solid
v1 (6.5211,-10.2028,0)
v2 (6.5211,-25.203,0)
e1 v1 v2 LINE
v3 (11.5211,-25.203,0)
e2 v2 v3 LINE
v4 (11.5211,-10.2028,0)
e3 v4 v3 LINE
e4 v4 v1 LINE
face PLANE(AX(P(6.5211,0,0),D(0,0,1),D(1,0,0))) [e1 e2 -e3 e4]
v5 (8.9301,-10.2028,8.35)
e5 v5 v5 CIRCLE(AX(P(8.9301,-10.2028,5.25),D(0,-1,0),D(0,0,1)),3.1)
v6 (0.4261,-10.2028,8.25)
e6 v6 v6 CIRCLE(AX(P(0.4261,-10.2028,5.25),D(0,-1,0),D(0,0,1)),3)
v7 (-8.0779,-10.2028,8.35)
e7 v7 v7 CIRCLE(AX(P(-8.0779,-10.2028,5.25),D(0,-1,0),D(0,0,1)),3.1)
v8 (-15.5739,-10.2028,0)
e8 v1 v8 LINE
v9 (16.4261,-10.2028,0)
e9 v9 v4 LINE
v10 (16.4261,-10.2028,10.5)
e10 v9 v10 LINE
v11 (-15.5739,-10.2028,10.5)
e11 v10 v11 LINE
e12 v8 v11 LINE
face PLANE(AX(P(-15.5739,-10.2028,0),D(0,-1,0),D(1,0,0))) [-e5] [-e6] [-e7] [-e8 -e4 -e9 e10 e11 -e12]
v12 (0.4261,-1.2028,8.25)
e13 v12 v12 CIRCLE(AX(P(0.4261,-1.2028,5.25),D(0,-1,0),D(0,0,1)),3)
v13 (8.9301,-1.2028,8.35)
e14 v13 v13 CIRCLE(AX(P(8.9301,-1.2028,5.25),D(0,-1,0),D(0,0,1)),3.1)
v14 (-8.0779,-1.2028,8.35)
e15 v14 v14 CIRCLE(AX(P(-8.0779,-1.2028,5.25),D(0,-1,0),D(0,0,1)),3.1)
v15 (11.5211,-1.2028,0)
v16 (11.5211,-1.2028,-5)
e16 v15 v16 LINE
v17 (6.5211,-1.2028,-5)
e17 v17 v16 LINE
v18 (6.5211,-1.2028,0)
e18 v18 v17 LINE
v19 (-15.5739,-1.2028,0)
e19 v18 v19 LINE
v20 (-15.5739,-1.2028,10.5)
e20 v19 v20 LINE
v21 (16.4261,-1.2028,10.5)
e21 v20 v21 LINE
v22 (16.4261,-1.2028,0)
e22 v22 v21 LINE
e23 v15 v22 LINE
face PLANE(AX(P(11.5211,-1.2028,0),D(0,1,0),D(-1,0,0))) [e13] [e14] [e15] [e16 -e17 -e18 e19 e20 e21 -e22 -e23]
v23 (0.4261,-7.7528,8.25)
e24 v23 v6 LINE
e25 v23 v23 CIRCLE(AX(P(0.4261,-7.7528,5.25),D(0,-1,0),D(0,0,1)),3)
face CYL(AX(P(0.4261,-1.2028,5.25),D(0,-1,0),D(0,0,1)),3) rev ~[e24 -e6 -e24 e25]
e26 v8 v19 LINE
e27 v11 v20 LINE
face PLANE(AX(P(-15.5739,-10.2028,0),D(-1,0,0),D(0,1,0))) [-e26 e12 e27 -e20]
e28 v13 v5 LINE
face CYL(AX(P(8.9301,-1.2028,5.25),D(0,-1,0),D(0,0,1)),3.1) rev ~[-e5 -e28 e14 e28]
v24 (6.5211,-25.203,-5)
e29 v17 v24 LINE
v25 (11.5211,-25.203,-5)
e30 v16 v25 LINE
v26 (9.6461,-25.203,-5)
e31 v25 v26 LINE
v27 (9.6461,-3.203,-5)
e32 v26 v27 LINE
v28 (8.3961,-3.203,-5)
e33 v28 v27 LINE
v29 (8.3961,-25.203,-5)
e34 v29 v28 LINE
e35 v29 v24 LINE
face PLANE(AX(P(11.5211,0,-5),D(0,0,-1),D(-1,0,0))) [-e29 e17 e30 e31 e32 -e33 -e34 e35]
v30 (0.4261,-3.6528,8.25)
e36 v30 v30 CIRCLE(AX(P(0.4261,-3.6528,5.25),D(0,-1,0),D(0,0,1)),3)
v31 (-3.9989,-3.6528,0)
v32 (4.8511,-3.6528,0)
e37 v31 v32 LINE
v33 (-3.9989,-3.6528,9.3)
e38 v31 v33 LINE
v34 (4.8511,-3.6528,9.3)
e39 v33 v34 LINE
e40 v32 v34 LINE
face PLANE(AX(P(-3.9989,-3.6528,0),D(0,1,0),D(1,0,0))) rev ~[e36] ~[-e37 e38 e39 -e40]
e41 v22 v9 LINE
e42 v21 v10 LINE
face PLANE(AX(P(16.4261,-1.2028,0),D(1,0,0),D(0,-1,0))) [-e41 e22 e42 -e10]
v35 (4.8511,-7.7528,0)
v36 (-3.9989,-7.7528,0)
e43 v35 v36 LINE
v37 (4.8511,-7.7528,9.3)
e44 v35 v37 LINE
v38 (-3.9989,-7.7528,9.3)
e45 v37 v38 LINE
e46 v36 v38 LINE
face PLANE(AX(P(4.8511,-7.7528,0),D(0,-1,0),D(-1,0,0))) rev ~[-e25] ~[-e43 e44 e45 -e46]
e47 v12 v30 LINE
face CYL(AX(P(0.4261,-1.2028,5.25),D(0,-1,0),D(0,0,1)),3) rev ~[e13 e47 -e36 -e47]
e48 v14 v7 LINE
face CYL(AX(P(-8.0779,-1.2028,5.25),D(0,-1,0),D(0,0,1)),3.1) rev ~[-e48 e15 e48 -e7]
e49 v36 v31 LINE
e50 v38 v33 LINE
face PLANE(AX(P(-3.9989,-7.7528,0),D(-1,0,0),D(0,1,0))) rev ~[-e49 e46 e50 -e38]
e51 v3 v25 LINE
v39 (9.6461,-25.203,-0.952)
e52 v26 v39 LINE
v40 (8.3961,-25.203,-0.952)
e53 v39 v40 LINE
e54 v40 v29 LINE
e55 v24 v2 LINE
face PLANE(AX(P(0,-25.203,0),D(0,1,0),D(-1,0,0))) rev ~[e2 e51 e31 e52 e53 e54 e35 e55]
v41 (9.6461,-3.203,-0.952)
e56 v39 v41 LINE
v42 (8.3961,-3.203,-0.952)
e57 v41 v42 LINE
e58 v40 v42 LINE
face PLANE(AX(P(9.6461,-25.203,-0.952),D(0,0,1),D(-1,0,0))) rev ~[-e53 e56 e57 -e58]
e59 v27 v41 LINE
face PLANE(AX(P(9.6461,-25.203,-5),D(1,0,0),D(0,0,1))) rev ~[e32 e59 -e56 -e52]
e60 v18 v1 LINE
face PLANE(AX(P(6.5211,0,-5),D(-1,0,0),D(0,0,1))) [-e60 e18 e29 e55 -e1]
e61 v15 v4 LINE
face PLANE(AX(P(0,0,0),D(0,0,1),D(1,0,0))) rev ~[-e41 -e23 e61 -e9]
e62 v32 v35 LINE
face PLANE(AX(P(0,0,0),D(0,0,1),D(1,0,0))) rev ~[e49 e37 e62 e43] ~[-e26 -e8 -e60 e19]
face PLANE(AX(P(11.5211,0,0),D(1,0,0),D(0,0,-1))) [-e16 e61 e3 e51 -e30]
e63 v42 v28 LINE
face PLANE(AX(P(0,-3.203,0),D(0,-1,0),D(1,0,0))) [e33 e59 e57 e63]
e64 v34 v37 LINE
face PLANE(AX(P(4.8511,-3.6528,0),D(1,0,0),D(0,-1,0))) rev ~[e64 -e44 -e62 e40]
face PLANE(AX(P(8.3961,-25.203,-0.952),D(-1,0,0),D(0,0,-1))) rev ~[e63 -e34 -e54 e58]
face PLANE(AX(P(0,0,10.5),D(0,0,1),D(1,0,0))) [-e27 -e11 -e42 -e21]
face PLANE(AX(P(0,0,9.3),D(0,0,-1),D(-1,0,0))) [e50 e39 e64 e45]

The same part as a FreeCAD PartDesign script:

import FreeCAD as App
import Part
import Sketcher
from FreeCAD import Vector

doc = App.newDocument("Part")
body = doc.addObject("PartDesign::Body", "Body")

sketch1 = doc.addObject("Sketcher::SketchObject", "Sketch")
body.addObject(sketch1)
sketch1.AttachmentSupport = (doc.XY_Plane, [""])
sketch1.MapMode = "FlatFace"
sketch1.addGeometry(Part.LineSegment(Vector(16, -1, 0), Vector(-16, -1, 0)), False)
sketch1.addGeometry(Part.LineSegment(Vector(-16, -1, 0), Vector(-16, -10, 0)), False)
sketch1.addGeometry(Part.LineSegment(Vector(-16, -10, 0), Vector(16, -10, 0)), False)
sketch1.addGeometry(Part.LineSegment(Vector(16, -10, 0), Vector(16, -1, 0)), False)
sketch1.addConstraint(Sketcher.Constraint("Coincident", 0, 2, 1, 1))
sketch1.addConstraint(Sketcher.Constraint("Coincident", 1, 2, 2, 1))
sketch1.addConstraint(Sketcher.Constraint("Coincident", 2, 2, 3, 1))
sketch1.addConstraint(Sketcher.Constraint("Coincident", 3, 2, 0, 1))
sketch1.addConstraint(Sketcher.Constraint("Horizontal", 0))
sketch1.addConstraint(Sketcher.Constraint("Vertical", 1))
sketch1.addConstraint(Sketcher.Constraint("Horizontal", 2))
sketch1.addConstraint(Sketcher.Constraint("Vertical", 3))
sketch1.addConstraint(Sketcher.Constraint("DistanceX", 0, 2, 0, 1, 32.0))
sketch1.addConstraint(Sketcher.Constraint("DistanceY", 1, 2, 1, 1, 9.0))
sketch1.addConstraint(Sketcher.Constraint("DistanceX", 0, 2, -1, 1, 15.574))
sketch1.addConstraint(Sketcher.Constraint("DistanceY", 0, 2, -1, 1, 1.2028))
pad1 = doc.addObject("PartDesign::Pad", "Pad")
body.addObject(pad1)
pad1.Profile = sketch1
pad1.Length = 10.5

sketch2 = doc.addObject("Sketcher::SketchObject", "Sketch001")
body.addObject(sketch2)
sketch2.AttachmentSupport = (doc.XY_Plane, [""])
sketch2.MapMode = "FlatFace"
sketch2.addGeometry(Part.LineSegment(Vector(4.9, -3.7, 0), Vector(4.9, -7.8, 0)), False)
sketch2.addGeometry(Part.LineSegment(Vector(4.9, -7.8, 0), Vector(-4, -7.8, 0)), False)
sketch2.addGeometry(Part.LineSegment(Vector(-4, -7.8, 0), Vector(-4, -3.7, 0)), False)
sketch2.addGeometry(Part.LineSegment(Vector(-4, -3.7, 0), Vector(4.9, -3.7, 0)), False)
sketch2.addConstraint(Sketcher.Constraint("Coincident", 0, 2, 1, 1))
sketch2.addConstraint(Sketcher.Constraint("Coincident", 1, 2, 2, 1))
sketch2.addConstraint(Sketcher.Constraint("Coincident", 2, 2, 3, 1))
sketch2.addConstraint(Sketcher.Constraint("Coincident", 3, 2, 0, 1))
sketch2.addConstraint(Sketcher.Constraint("Vertical", 0))
sketch2.addConstraint(Sketcher.Constraint("Horizontal", 1))
sketch2.addConstraint(Sketcher.Constraint("Vertical", 2))
sketch2.addConstraint(Sketcher.Constraint("Horizontal", 3))
sketch2.addConstraint(Sketcher.Constraint("DistanceY", 0, 2, 0, 1, 4.1))
sketch2.addConstraint(Sketcher.Constraint("DistanceX", 1, 2, 1, 1, 8.85))
sketch2.addConstraint(Sketcher.Constraint("DistanceX", -1, 1, 0, 2, 4.851))
sketch2.addConstraint(Sketcher.Constraint("DistanceY", 0, 2, -1, 1, 7.7528))
pocket1 = doc.addObject("PartDesign::Pocket", "Pocket")
body.addObject(pocket1)
pocket1.Profile = sketch2
pocket1.Length = 9.3
pocket1.Reversed = True

sketch3 = doc.addObject("Sketcher::SketchObject", "Sketch002")
body.addObject(sketch3)
sketch3.AttachmentSupport = (doc.XZ_Plane, [""])
sketch3.MapMode = "FlatFace"
sketch3.AttachmentOffset = App.Placement(Vector(0, 0, 10.2028), App.Rotation())
sketch3.addGeometry(Part.LineSegment(Vector(-10.7, 1.2, 0), Vector(-10.7, 0, 0)), False)
sketch3.addGeometry(Part.LineSegment(Vector(-10.7, 0, 0), Vector(-5.7, 0, 0)), False)
sketch3.addGeometry(Part.LineSegment(Vector(-5.7, 0, 0), Vector(-5.7, 1.2, 0)), False)
sketch3.addGeometry(Part.LineSegment(Vector(-5.7, 1.2, 0), Vector(-10.7, 1.2, 0)), False)
sketch3.addConstraint(Sketcher.Constraint("Coincident", 0, 2, 1, 1))
sketch3.addConstraint(Sketcher.Constraint("Coincident", 1, 2, 2, 1))
sketch3.addConstraint(Sketcher.Constraint("Coincident", 2, 2, 3, 1))
sketch3.addConstraint(Sketcher.Constraint("Coincident", 3, 2, 0, 1))
sketch3.addConstraint(Sketcher.Constraint("Vertical", 0))
sketch3.addConstraint(Sketcher.Constraint("Horizontal", 1))
sketch3.addConstraint(Sketcher.Constraint("Vertical", 2))
sketch3.addConstraint(Sketcher.Constraint("Horizontal", 3))
sketch3.addConstraint(Sketcher.Constraint("PointOnObject", 0, 2, -1))
sketch3.addConstraint(Sketcher.Constraint("DistanceX", 1, 1, 1, 2, 5.0))
sketch3.addConstraint(Sketcher.Constraint("DistanceY", 0, 2, 0, 1, 1.2))
sketch3.addConstraint(Sketcher.Constraint("DistanceX", 0, 2, -1, 1, 10.6694))
pad2 = doc.addObject("PartDesign::Pad", "Pad001")
body.addObject(pad2)
pad2.Profile = sketch3
pad2.Length = 15

sketch4 = doc.addObject("Sketcher::SketchObject", "Sketch003")
body.addObject(sketch4)
sketch4.AttachmentSupport = (doc.XY_Plane, [""])
sketch4.MapMode = "FlatFace"
sketch4.addGeometry(Part.LineSegment(Vector(-5.7, -1.2, 0), Vector(-5.7, -25.2, 0)), False)
sketch4.addGeometry(Part.LineSegment(Vector(-5.7, -25.2, 0), Vector(-10.7, -25.2, 0)), False)
sketch4.addGeometry(Part.LineSegment(Vector(-10.7, -25.2, 0), Vector(-10.7, -1.2, 0)), False)
sketch4.addGeometry(Part.LineSegment(Vector(-10.7, -1.2, 0), Vector(-5.7, -1.2, 0)), False)
sketch4.addConstraint(Sketcher.Constraint("Coincident", 0, 2, 1, 1))
sketch4.addConstraint(Sketcher.Constraint("Coincident", 1, 2, 2, 1))
sketch4.addConstraint(Sketcher.Constraint("Coincident", 2, 2, 3, 1))
sketch4.addConstraint(Sketcher.Constraint("Coincident", 3, 2, 0, 1))
sketch4.addConstraint(Sketcher.Constraint("Vertical", 0))
sketch4.addConstraint(Sketcher.Constraint("Horizontal", 1))
sketch4.addConstraint(Sketcher.Constraint("Vertical", 2))
sketch4.addConstraint(Sketcher.Constraint("Horizontal", 3))
sketch4.addConstraint(Sketcher.Constraint("DistanceX", 1, 2, 1, 1, 5.0))
sketch4.addConstraint(Sketcher.Constraint("DistanceY", 0, 2, 0, 1, 24.0))
sketch4.addConstraint(Sketcher.Constraint("DistanceX", 0, 2, -1, 1, 5.6694))
sketch4.addConstraint(Sketcher.Constraint("DistanceY", 0, 2, -1, 1, 25.2028))
pad3 = doc.addObject("PartDesign::Pad", "Pad002")
body.addObject(pad3)
pad3.Profile = sketch4
pad3.Length = 5
pad3.Reversed = True

sketch5 = doc.addObject("Sketcher::SketchObject", "Sketch004")
body.addObject(sketch5)
sketch5.AttachmentSupport = (doc.XZ_Plane, [""])
sketch5.MapMode = "FlatFace"
sketch5.AttachmentOffset = App.Placement(Vector(0, 0, 25.2028), App.Rotation())
sketch5.addGeometry(Part.LineSegment(Vector(-8.8, -1, 0), Vector(-8.8, -5, 0)), False)
sketch5.addGeometry(Part.LineSegment(Vector(-8.8, -5, 0), Vector(-7.5, -5, 0)), False)
sketch5.addGeometry(Part.LineSegment(Vector(-7.5, -5, 0), Vector(-7.5, -1, 0)), False)
sketch5.addGeometry(Part.LineSegment(Vector(-7.5, -1, 0), Vector(-8.8, -1, 0)), False)
sketch5.addConstraint(Sketcher.Constraint("Coincident", 0, 2, 1, 1))
sketch5.addConstraint(Sketcher.Constraint("Coincident", 1, 2, 2, 1))
sketch5.addConstraint(Sketcher.Constraint("Coincident", 2, 2, 3, 1))
sketch5.addConstraint(Sketcher.Constraint("Coincident", 3, 2, 0, 1))
sketch5.addConstraint(Sketcher.Constraint("Vertical", 0))
sketch5.addConstraint(Sketcher.Constraint("Horizontal", 1))
sketch5.addConstraint(Sketcher.Constraint("Vertical", 2))
sketch5.addConstraint(Sketcher.Constraint("Horizontal", 3))
sketch5.addConstraint(Sketcher.Constraint("DistanceX", 1, 1, 1, 2, 1.25))
sketch5.addConstraint(Sketcher.Constraint("DistanceY", 0, 2, 0, 1, 4.0475))
sketch5.addConstraint(Sketcher.Constraint("DistanceY", 0, 2, -1, 1, 5.0))
sketch5.addConstraint(Sketcher.Constraint("DistanceX", 0, 2, -1, 1, 8.7944))
pocket2 = doc.addObject("PartDesign::Pocket", "Pocket001")
body.addObject(pocket2)
pocket2.Profile = sketch5
pocket2.Length = 22

sketch6 = doc.addObject("Sketcher::SketchObject", "Sketch005")
body.addObject(sketch6)
sketch6.AttachmentSupport = (doc.XZ_Plane, [""])
sketch6.MapMode = "FlatFace"
sketch6.AttachmentOffset = App.Placement(Vector(0, 0, 25.2028), App.Rotation())
sketch6.addGeometry(Part.LineSegment(Vector(-5.7, 0, 0), Vector(-5.7, 1.2, 0)), False)
sketch6.addGeometry(Part.LineSegment(Vector(-5.7, 1.2, 0), Vector(-10.7, 1.2, 0)), False)
sketch6.addGeometry(Part.LineSegment(Vector(-10.7, 1.2, 0), Vector(-10.7, 0, 0)), False)
sketch6.addGeometry(Part.LineSegment(Vector(-10.7, 0, 0), Vector(-5.7, 0, 0)), False)
sketch6.addConstraint(Sketcher.Constraint("Coincident", 0, 2, 1, 1))
sketch6.addConstraint(Sketcher.Constraint("Coincident", 1, 2, 2, 1))
sketch6.addConstraint(Sketcher.Constraint("Coincident", 2, 2, 3, 1))
sketch6.addConstraint(Sketcher.Constraint("Coincident", 3, 2, 0, 1))
sketch6.addConstraint(Sketcher.Constraint("Vertical", 0))
sketch6.addConstraint(Sketcher.Constraint("Horizontal", 1))
sketch6.addConstraint(Sketcher.Constraint("Vertical", 2))
sketch6.addConstraint(Sketcher.Constraint("Horizontal", 3))
sketch6.addConstraint(Sketcher.Constraint("PointOnObject", 2, 2, -1))
sketch6.addConstraint(Sketcher.Constraint("DistanceX", 1, 2, 1, 1, 5.0))
sketch6.addConstraint(Sketcher.Constraint("DistanceY", 0, 1, 0, 2, 1.2))
sketch6.addConstraint(Sketcher.Constraint("DistanceX", 0, 2, -1, 1, 5.6694))
pocket3 = doc.addObject("PartDesign::Pocket", "Pocket002")
body.addObject(pocket3)
pocket3.Profile = sketch6
pocket3.Length = 15

sketch7 = doc.addObject("Sketcher::SketchObject", "Sketch006")
body.addObject(sketch7)
sketch7.AttachmentSupport = (doc.XZ_Plane, [""])
sketch7.MapMode = "FlatFace"
sketch7.addGeometry(Part.LineSegment(Vector(7, -5, 0), Vector(7, 0, 0)), False)
sketch7.addGeometry(Part.LineSegment(Vector(7, 0, 0), Vector(12, 0, 0)), False)
sketch7.addGeometry(Part.LineSegment(Vector(12, 0, 0), Vector(12, -5, 0)), False)
sketch7.addGeometry(Part.LineSegment(Vector(12, -5, 0), Vector(7, -5, 0)), False)
sketch7.addConstraint(Sketcher.Constraint("Coincident", 0, 2, 1, 1))
sketch7.addConstraint(Sketcher.Constraint("Coincident", 1, 2, 2, 1))
sketch7.addConstraint(Sketcher.Constraint("Coincident", 2, 2, 3, 1))
sketch7.addConstraint(Sketcher.Constraint("Coincident", 3, 2, 0, 1))
sketch7.addConstraint(Sketcher.Constraint("Vertical", 0))
sketch7.addConstraint(Sketcher.Constraint("Horizontal", 1))
sketch7.addConstraint(Sketcher.Constraint("Vertical", 2))
sketch7.addConstraint(Sketcher.Constraint("Horizontal", 3))
sketch7.addConstraint(Sketcher.Constraint("PointOnObject", 0, 2, -1))
sketch7.addConstraint(Sketcher.Constraint("Equal", 3, 0))
sketch7.addConstraint(Sketcher.Constraint("DistanceX", 1, 1, 1, 2, 5.0))
sketch7.addConstraint(Sketcher.Constraint("DistanceX", -1, 1, 0, 2, 6.521))
pad4 = doc.addObject("PartDesign::Pad", "Pad003")
body.addObject(pad4)
pad4.Profile = sketch7
pad4.Length = 25.203

sketch8 = doc.addObject("Sketcher::SketchObject", "Sketch007")
body.addObject(sketch8)
sketch8.AttachmentSupport = (doc.XY_Plane, [""])
sketch8.MapMode = "FlatFace"
sketch8.addGeometry(Part.LineSegment(Vector(11.5, 0, 0), Vector(6.5, 0, 0)), False)
sketch8.addGeometry(Part.LineSegment(Vector(6.5, 0, 0), Vector(6.5, -1.2, 0)), False)
sketch8.addGeometry(Part.LineSegment(Vector(6.5, -1.2, 0), Vector(11.5, -1.2, 0)), False)
sketch8.addGeometry(Part.LineSegment(Vector(11.5, -1.2, 0), Vector(11.5, 0, 0)), False)
sketch8.addConstraint(Sketcher.Constraint("Coincident", 0, 2, 1, 1))
sketch8.addConstraint(Sketcher.Constraint("Coincident", 1, 2, 2, 1))
sketch8.addConstraint(Sketcher.Constraint("Coincident", 2, 2, 3, 1))
sketch8.addConstraint(Sketcher.Constraint("Coincident", 3, 2, 0, 1))
sketch8.addConstraint(Sketcher.Constraint("Horizontal", 0))
sketch8.addConstraint(Sketcher.Constraint("Vertical", 1))
sketch8.addConstraint(Sketcher.Constraint("Horizontal", 2))
sketch8.addConstraint(Sketcher.Constraint("Vertical", 3))
sketch8.addConstraint(Sketcher.Constraint("PointOnObject", 0, 2, -1))
sketch8.addConstraint(Sketcher.Constraint("DistanceX", 0, 2, 0, 1, 5.0))
sketch8.addConstraint(Sketcher.Constraint("DistanceY", 1, 2, 1, 1, 1.2028))
sketch8.addConstraint(Sketcher.Constraint("DistanceX", -1, 1, 0, 2, 6.521))
pocket4 = doc.addObject("PartDesign::Pocket", "Pocket003")
body.addObject(pocket4)
pocket4.Profile = sketch8
pocket4.Length = 25

sketch9 = doc.addObject("Sketcher::SketchObject", "Sketch008")
body.addObject(sketch9)
sketch9.AttachmentSupport = (doc.XZ_Plane, [""])
sketch9.MapMode = "FlatFace"
sketch9.AttachmentOffset = App.Placement(Vector(0, 0, 25.203), App.Rotation())
sketch9.addGeometry(Part.LineSegment(Vector(8.4, -1, 0), Vector(8.4, -5, 0)), False)
sketch9.addGeometry(Part.LineSegment(Vector(8.4, -5, 0), Vector(9.6, -5, 0)), False)
sketch9.addGeometry(Part.LineSegment(Vector(9.6, -5, 0), Vector(9.6, -1, 0)), False)
sketch9.addGeometry(Part.LineSegment(Vector(9.6, -1, 0), Vector(8.4, -1, 0)), False)
sketch9.addConstraint(Sketcher.Constraint("Coincident", 0, 2, 1, 1))
sketch9.addConstraint(Sketcher.Constraint("Coincident", 1, 2, 2, 1))
sketch9.addConstraint(Sketcher.Constraint("Coincident", 2, 2, 3, 1))
sketch9.addConstraint(Sketcher.Constraint("Coincident", 3, 2, 0, 1))
sketch9.addConstraint(Sketcher.Constraint("Vertical", 0))
sketch9.addConstraint(Sketcher.Constraint("Horizontal", 1))
sketch9.addConstraint(Sketcher.Constraint("Vertical", 2))
sketch9.addConstraint(Sketcher.Constraint("Horizontal", 3))
sketch9.addConstraint(Sketcher.Constraint("DistanceX", 1, 1, 1, 2, 1.25))
sketch9.addConstraint(Sketcher.Constraint("DistanceY", 0, 2, 0, 1, 4.048))
sketch9.addConstraint(Sketcher.Constraint("DistanceY", 0, 2, -1, 1, 5.0))
sketch9.addConstraint(Sketcher.Constraint("DistanceX", -1, 1, 0, 2, 8.396))
pocket5 = doc.addObject("PartDesign::Pocket", "Pocket004")
body.addObject(pocket5)
pocket5.Profile = sketch9
pocket5.Length = 22

sketch10 = doc.addObject("Sketcher::SketchObject", "Sketch009")
body.addObject(sketch10)
sketch10.AttachmentSupport = (doc.XZ_Plane, [""])
sketch10.MapMode = "FlatFace"
sketch10.AttachmentOffset = App.Placement(Vector(0, 0, 25.2028), App.Rotation())
sketch10.addGeometry(Part.LineSegment(Vector(-10.7, 0, 0), Vector(-10.7, -5, 0)), False)
sketch10.addGeometry(Part.LineSegment(Vector(-10.7, -5, 0), Vector(-5.7, -5, 0)), False)
sketch10.addGeometry(Part.LineSegment(Vector(-5.7, -5, 0), Vector(-5.7, 0, 0)), False)
sketch10.addGeometry(Part.LineSegment(Vector(-5.7, 0, 0), Vector(-10.7, 0, 0)), False)
sketch10.addConstraint(Sketcher.Constraint("Coincident", 0, 2, 1, 1))
sketch10.addConstraint(Sketcher.Constraint("Coincident", 1, 2, 2, 1))
sketch10.addConstraint(Sketcher.Constraint("Coincident", 2, 2, 3, 1))
sketch10.addConstraint(Sketcher.Constraint("Coincident", 3, 2, 0, 1))
sketch10.addConstraint(Sketcher.Constraint("Vertical", 0))
sketch10.addConstraint(Sketcher.Constraint("Horizontal", 1))
sketch10.addConstraint(Sketcher.Constraint("Vertical", 2))
sketch10.addConstraint(Sketcher.Constraint("Horizontal", 3))
sketch10.addConstraint(Sketcher.Constraint("PointOnObject", 2, 2, -1))
sketch10.addConstraint(Sketcher.Constraint("Equal", 3, 0))
sketch10.addConstraint(Sketcher.Constraint("DistanceX", 1, 1, 1, 2, 5.0))
sketch10.addConstraint(Sketcher.Constraint("DistanceX", 0, 2, -1, 1, 10.6694))
pocket6 = doc.addObject("PartDesign::Pocket", "Pocket005")
body.addObject(pocket6)
pocket6.Profile = sketch10
pocket6.Length = 25

sketch11 = doc.addObject("Sketcher::SketchObject", "Sketch010")
body.addObject(sketch11)
sketch11.AttachmentSupport = (doc.XZ_Plane, [""])
sketch11.MapMode = "FlatFace"
sketch11.AttachmentOffset = App.Placement(Vector(0, 0, 1.2028), App.Rotation())
sketch11.addGeometry(Part.Circle(Vector(0.4, 5.2, 0), Vector(0, 0, 1), 3), False)
sketch11.addConstraint(Sketcher.Constraint("Diameter", 0, 6.0))
sketch11.addConstraint(Sketcher.Constraint("DistanceY", -1, 1, 0, 3, 5.25))
sketch11.addConstraint(Sketcher.Constraint("DistanceX", -1, 1, 0, 3, 0.426))
doc.recompute()
hole = doc.addObject("PartDesign::Hole", "Hole")
body.addObject(hole)
hole.Profile = sketch11
hole.ThreadType = "None"
hole.Diameter = 6
hole.DepthType = "ThroughAll"
hole.Reversed = True

sketch12 = doc.addObject("Sketcher::SketchObject", "Sketch011")
body.addObject(sketch12)
sketch12.AttachmentSupport = (doc.XZ_Plane, [""])
sketch12.MapMode = "FlatFace"
sketch12.AttachmentOffset = App.Placement(Vector(0, 0, 1.2028), App.Rotation())
sketch12.addGeometry(Part.Circle(Vector(-8.1, 5.2, 0), Vector(0, 0, 1), 3.1), False)
sketch12.addGeometry(Part.Circle(Vector(8.9, 5.2, 0), Vector(0, 0, 1), 3.1), False)
sketch12.addConstraint(Sketcher.Constraint("Equal", 0, 1))
sketch12.addConstraint(Sketcher.Constraint("Horizontal", 0, 3, 1, 3))
sketch12.addConstraint(Sketcher.Constraint("Diameter", 0, 6.2))
sketch12.addConstraint(Sketcher.Constraint("DistanceY", -1, 1, 0, 3, 5.25))
sketch12.addConstraint(Sketcher.Constraint("DistanceX", -1, 1, 1, 3, 8.93))
sketch12.addConstraint(Sketcher.Constraint("DistanceX", 0, 3, -1, 1, 8.078))
doc.recompute()
hole2 = doc.addObject("PartDesign::Hole", "Hole001")
body.addObject(hole2)
hole2.Profile = sketch12
hole2.ThreadType = "None"
hole2.Diameter = 6.2
hole2.DepthType = "ThroughAll"
hole2.Reversed = True

doc.recompute()
